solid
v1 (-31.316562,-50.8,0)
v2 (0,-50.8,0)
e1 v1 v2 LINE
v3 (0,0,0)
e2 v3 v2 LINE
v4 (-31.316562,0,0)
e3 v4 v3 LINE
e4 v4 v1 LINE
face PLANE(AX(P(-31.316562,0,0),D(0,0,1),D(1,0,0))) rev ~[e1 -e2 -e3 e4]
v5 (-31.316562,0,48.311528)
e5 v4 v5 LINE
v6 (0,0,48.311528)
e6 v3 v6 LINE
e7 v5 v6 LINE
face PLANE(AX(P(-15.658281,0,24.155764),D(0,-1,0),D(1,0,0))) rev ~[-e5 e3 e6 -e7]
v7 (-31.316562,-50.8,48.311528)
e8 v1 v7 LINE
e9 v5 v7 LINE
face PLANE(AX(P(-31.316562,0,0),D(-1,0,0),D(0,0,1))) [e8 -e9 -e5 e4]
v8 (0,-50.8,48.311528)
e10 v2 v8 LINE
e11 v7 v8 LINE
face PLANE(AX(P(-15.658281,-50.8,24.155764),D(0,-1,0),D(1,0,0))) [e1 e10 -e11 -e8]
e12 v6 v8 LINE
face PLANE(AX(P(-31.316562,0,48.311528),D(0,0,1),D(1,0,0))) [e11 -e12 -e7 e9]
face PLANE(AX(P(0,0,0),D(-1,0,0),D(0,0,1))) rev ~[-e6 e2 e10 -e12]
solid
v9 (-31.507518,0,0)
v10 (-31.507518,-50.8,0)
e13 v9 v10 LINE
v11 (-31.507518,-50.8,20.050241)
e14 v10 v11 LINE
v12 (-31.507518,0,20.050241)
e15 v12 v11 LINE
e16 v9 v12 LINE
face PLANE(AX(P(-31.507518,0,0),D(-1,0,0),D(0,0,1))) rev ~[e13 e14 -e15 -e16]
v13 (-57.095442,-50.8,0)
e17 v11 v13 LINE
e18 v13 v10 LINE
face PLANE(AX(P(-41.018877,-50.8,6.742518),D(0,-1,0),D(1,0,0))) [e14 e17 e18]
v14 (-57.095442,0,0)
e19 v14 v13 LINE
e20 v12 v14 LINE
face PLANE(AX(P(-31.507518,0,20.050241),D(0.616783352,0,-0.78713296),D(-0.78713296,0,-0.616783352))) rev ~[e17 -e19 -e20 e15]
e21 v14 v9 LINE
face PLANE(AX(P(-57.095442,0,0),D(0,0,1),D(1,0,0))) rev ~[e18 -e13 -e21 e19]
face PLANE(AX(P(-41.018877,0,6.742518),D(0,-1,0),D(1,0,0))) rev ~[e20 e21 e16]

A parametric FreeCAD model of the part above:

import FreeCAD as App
import Part
import Sketcher

V = App.Vector
Q = App.Units.Quantity

doc = App.newDocument("Part")
body = doc.addObject("PartDesign::Body", "Body")

# Sketch on XZ plane
sketch1 = doc.addObject("Sketcher::SketchObject", "Sketch")
body.addObject(sketch1)
sketch1.AttachmentSupport = (doc.XZ_Plane, [""])
sketch1.MapMode = "FlatFace"
sketch1.addGeometry(Part.LineSegment(V(-31.316562, 48.311528, 0), V(-31.316562, 0, 0)), False)
sketch1.addGeometry(Part.LineSegment(V(-31.316562, 0, 0), V(0, 0, 0)), False)
sketch1.addGeometry(Part.LineSegment(V(0, 0, 0), V(0, 48.311528, 0)), False)
sketch1.addGeometry(Part.LineSegment(V(0, 48.311528, 0), V(-31.316562, 48.311528, 0)), False)
sketch1.addConstraint(Sketcher.Constraint("Coincident", 0, 2, 1, 1))
sketch1.addConstraint(Sketcher.Constraint("Coincident", 1, 2, 2, 1))
sketch1.addConstraint(Sketcher.Constraint("Coincident", 2, 2, 3, 1))
sketch1.addConstraint(Sketcher.Constraint("Coincident", 3, 2, 0, 1))
sketch1.addConstraint(Sketcher.Constraint("Vertical", 0))
sketch1.addConstraint(Sketcher.Constraint("Horizontal", 1))
sketch1.addConstraint(Sketcher.Constraint("Vertical", 2))
sketch1.addConstraint(Sketcher.Constraint("Horizontal", 3))
sketch1.addConstraint(Sketcher.Constraint("Coincident", 1, 2, -1, 1))
sketch1.addConstraint(Sketcher.Constraint("DistanceY", 0, 2, 0, 1, 48.311528))
sketch1.addConstraint(Sketcher.Constraint("DistanceX", 1, 1, 1, 2, 31.316563))
pad1 = doc.addObject("PartDesign::Pad", "Pad")
body.addObject(pad1)
pad1.Profile = sketch1
pad1.Length = Q("2 in")
body2 = doc.addObject("PartDesign::Body", "Body001")

# Sketch on XZ plane
sketch2 = doc.addObject("Sketcher::SketchObject", "Sketch001")
body2.addObject(sketch2)
sketch2.AttachmentSupport = (doc.getObject("XZ_Plane001"), [""])
sketch2.MapMode = "FlatFace"
sketch2.addGeometry(Part.LineSegment(V(-31.507518, 20.050241, 0), V(-57.095442, 0, 0)), False)
sketch2.addGeometry(Part.LineSegment(V(-57.095442, 0, 0), V(-31.507518, 0, 0)), False)
sketch2.addGeometry(Part.LineSegment(V(-31.507518, 0, 0), V(-31.507518, 20.050241, 0)), False)
sketch2.addConstraint(Sketcher.Constraint("Coincident", 0, 2, 1, 1))
sketch2.addConstraint(Sketcher.Constraint("Coincident", 1, 2, 2, 1))
sketch2.addConstraint(Sketcher.Constraint("Coincident", 2, 2, 0, 1))
sketch2.addConstraint(Sketcher.Constraint("Horizontal", 1))
sketch2.addConstraint(Sketcher.Constraint("Vertical", 2))
sketch2.addConstraint(Sketcher.Constraint("PointOnObject", 0, 2, -1))
sketch2.addConstraint(Sketcher.Constraint("DistanceY", 2, 1, 2, 2, 20.050241))
sketch2.addConstraint(Sketcher.Constraint("DistanceX", 1, 1, 1, 2, 25.587924))
sketch2.addConstraint(Sketcher.Constraint("DistanceX", 0, 2, -1, 1, 57.095442))
pad2 = doc.addObject("PartDesign::Pad", "Pad001")
body2.addObject(pad2)
pad2.Profile = sketch2
pad2.Length = Q("2 in")

doc.recompute()
